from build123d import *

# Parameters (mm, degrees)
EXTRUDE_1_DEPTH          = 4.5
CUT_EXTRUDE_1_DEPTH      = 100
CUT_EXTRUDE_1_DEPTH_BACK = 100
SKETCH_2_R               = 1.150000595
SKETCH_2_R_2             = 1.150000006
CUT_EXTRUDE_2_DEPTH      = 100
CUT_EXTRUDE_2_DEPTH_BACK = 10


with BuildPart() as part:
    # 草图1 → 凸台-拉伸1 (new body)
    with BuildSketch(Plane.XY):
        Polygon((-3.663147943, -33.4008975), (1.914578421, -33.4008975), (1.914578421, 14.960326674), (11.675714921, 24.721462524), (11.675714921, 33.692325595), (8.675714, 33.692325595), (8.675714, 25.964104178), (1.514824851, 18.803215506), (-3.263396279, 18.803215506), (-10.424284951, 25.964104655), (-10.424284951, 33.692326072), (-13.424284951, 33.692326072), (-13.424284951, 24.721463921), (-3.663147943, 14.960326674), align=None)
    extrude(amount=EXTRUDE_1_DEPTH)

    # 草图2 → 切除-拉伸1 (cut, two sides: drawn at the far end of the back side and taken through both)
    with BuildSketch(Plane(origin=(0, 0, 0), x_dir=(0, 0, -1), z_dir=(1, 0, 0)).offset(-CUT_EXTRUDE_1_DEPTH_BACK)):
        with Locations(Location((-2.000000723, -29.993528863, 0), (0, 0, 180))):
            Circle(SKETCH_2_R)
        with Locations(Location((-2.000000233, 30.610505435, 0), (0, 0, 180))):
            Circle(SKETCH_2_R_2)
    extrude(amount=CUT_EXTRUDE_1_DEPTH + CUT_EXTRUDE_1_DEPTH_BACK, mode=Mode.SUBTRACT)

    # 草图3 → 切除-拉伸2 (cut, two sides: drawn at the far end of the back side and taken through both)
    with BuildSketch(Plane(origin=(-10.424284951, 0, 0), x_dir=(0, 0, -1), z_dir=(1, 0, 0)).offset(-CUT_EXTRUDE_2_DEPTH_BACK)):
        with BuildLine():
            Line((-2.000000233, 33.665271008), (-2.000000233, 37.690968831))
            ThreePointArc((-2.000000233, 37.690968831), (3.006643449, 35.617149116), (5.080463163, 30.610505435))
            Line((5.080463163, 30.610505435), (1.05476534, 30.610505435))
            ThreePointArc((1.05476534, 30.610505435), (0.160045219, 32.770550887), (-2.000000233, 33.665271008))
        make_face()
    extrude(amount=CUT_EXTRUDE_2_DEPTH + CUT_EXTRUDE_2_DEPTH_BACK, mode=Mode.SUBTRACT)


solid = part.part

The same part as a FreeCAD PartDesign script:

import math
import FreeCAD as App
import Part
import Sketcher

V = App.Vector

doc = App.newDocument("Part")
params = doc.addObject("Spreadsheet::Sheet", "Params")
for row, (alias, value) in enumerate([
    ("sketch1_width", "3.000001 mm"),
    ("pad1_length", "4.5 mm"),
    ("sketch2_diameter", "2.300001 mm"),
], start=1):
    params.set(f"A{row}", alias)
    params.set(f"B{row}", "=" + value)
    params.setAlias(f"B{row}", alias)

body = doc.addObject("PartDesign::Body", "Body")

# Sketch on XY plane
sketch1 = body.newObject("Sketcher::SketchObject", "Sketch")
sketch1.AttachmentSupport = (doc.getObject("XY_Plane"), [""])
sketch1.MapMode = "FlatFace"
sketch1.addGeometry([
    Part.LineSegment(V(-3.7, -33.4, 0), V(1.9, -33.4, 0)),  # 0
    Part.LineSegment(V(1.9, -33.4, 0), V(1.9, 15, 0)),  # 1
    Part.LineSegment(V(1.9, 15, 0), V(11.7, 24.7, 0)),  # 2
    Part.LineSegment(V(11.7, 24.7, 0), V(11.7, 33.7, 0)),  # 3
    Part.LineSegment(V(11.7, 33.7, 0), V(8.7, 33.7, 0)),  # 4
    Part.LineSegment(V(8.7, 33.7, 0), V(8.7, 26, 0)),  # 5
    Part.LineSegment(V(8.7, 26, 0), V(1.5, 18.8, 0)),  # 6
    Part.LineSegment(V(1.5, 18.8, 0), V(-3.3, 18.8, 0)),  # 7
    Part.LineSegment(V(-3.3, 18.8, 0), V(-10.4, 26, 0)),  # 8
    Part.LineSegment(V(-10.4, 26, 0), V(-10.4, 33.7, 0)),  # 9
    Part.LineSegment(V(-10.4, 33.7, 0), V(-13.4, 33.7, 0)),  # 10
    Part.LineSegment(V(-13.4, 33.7, 0), V(-13.4, 24.7, 0)),  # 11
    Part.LineSegment(V(-13.4, 24.7, 0), V(-3.7, 15, 0)),  # 12
    Part.LineSegment(V(-3.7, 15, 0), V(-3.7, -33.4, 0)),  # 13
], False)
sketch1.addConstraint([
    Sketcher.Constraint("Coincident", 0, 2, 1, 1),
    Sketcher.Constraint("Coincident", 1, 2, 2, 1),
    Sketcher.Constraint("Coincident", 2, 2, 3, 1),
    Sketcher.Constraint("Coincident", 3, 2, 4, 1),
    Sketcher.Constraint("Coincident", 4, 2, 5, 1),
    Sketcher.Constraint("Coincident", 5, 2, 6, 1),
    Sketcher.Constraint("Coincident", 6, 2, 7, 1),
    Sketcher.Constraint("Coincident", 7, 2, 8, 1),
    Sketcher.Constraint("Coincident", 8, 2, 9, 1),
    Sketcher.Constraint("Coincident", 9, 2, 10, 1),
    Sketcher.Constraint("Coincident", 10, 2, 11, 1),
    Sketcher.Constraint("Coincident", 11, 2, 12, 1),
    Sketcher.Constraint("Coincident", 12, 2, 13, 1),
    Sketcher.Constraint("Coincident", 13, 2, 0, 1),
    Sketcher.Constraint("Horizontal", 0),
    Sketcher.Constraint("Vertical", 1),
    Sketcher.Constraint("Vertical", 3),
    Sketcher.Constraint("Horizontal", 4),
    Sketcher.Constraint("Vertical", 5),
    Sketcher.Constraint("Horizontal", 7),
    Sketcher.Constraint("Vertical", 9),
    Sketcher.Constraint("Horizontal", 10),
    Sketcher.Constraint("Vertical", 11),
    Sketcher.Constraint("Vertical", 13),
    Sketcher.Constraint("Parallel", 2, 6),
    Sketcher.Constraint("Perpendicular", 6, 8),
    Sketcher.Constraint("Parallel", 8, 12),
    Sketcher.Constraint("Horizontal", 5, 2, 8, 2),
    Sketcher.Constraint("Horizontal", 4, 2, 9, 2),
    Sketcher.Constraint("Horizontal", 2, 2, 11, 2),
    Sketcher.Constraint("Horizontal", 1, 2, 12, 2),
    Sketcher.Constraint("Equal", 4, 10),
    Sketcher.Constraint("Equal", 6, 8),
    Sketcher.Constraint("DistanceX", 4, 2, 4, 1, 3.000001),
    Sketcher.Constraint("DistanceX", 8, 2, 5, 2, 19.099999),
    Sketcher.Constraint("DistanceY", 1, 2, 3, 2, 18.731999),
    Sketcher.Constraint("DistanceY", 0, 2, 5, 2, 59.365002),
    Sketcher.Constraint("DistanceX", 7, 2, 7, 1, 4.778221),
    Sketcher.Constraint("DistanceY", 5, 2, 5, 1, 7.728221),
    Sketcher.Constraint("Distance", 2, 13.804331),
    Sketcher.Constraint("DistanceX", -1, 1, 0, 2, 1.914578),
    Sketcher.Constraint("DistanceY", 0, 2, -1, 1, 33.400897),
])
sketch1.setExpression("Constraints[33]", "Params.sketch1_width")
pad1 = body.newObject("PartDesign::Pad", "Pad")
pad1.Profile = sketch1
pad1.setExpression("Length", "Params.pad1_length")

# Sketch on YZ plane
sketch2 = body.newObject("Sketcher::SketchObject", "Sketch001")
sketch2.AttachmentSupport = (doc.getObject("YZ_Plane"), [""])
sketch2.MapMode = "FlatFace"
sketch2.addGeometry([
    Part.Circle(V(-30, 2, 0), V(0, 0, 1), 1.2),
    Part.Circle(V(30.6, 2, 0), V(0, 0, 1), 1.2),
], False)
sketch2.addConstraint([
    Sketcher.Constraint("Equal", 0, 1),
    Sketcher.Constraint("Horizontal", 0, 3, 1, 3),
    Sketcher.Constraint("Diameter", 0, 2.300001),
    Sketcher.Constraint("DistanceY", -1, 1, 0, 3, 2.000001),
    Sketcher.Constraint("DistanceX", 0, 3, -1, 1, 29.993529),
    Sketcher.Constraint("DistanceX", -1, 1, 1, 3, 30.610505),
])
sketch2.setExpression("Constraints[2]", "Params.sketch2_diameter")
pocket1 = body.newObject("PartDesign::Pocket", "Pocket")
pocket1.Profile = sketch2
pocket1.Type = "ThroughAll"
pocket1.Midplane = True

# Sketch on YZ plane
sketch3 = body.newObject("Sketcher::SketchObject", "Sketch002")
sketch3.AttachmentSupport = (doc.getObject("YZ_Plane"), [""])
sketch3.MapMode = "FlatFace"
sketch3.AttachmentOffset = App.Placement(V(0, 0, -10.424285), App.Rotation())
sketch3.addGeometry([
    Part.LineSegment(V(37.7, 2, 0), V(33.7, 2, 0)),
    Part.ArcOfCircle(Part.Circle(V(30.6, 2, 0), V(0, 0, 1), 3.1), math.radians(-90), math.radians(0)),
    Part.LineSegment(V(30.6, -1.1, 0), V(30.6, -5.1, 0)),
    Part.ArcOfCircle(Part.Circle(V(30.6, 2, 0), V(0, 0, 1), 7.1), math.radians(-90), math.radians(0)),
], False)
sketch3.addConstraint([
    Sketcher.Constraint("Coincident", 0, 2, 1, 2),
    Sketcher.Constraint("Coincident", 1, 1, 2, 1),
    Sketcher.Constraint("Coincident", 2, 2, 3, 1),
    Sketcher.Constraint("Coincident", 3, 2, 0, 1),
    Sketcher.Constraint("Horizontal", 0),
    Sketcher.Constraint("Vertical", 2),
    Sketcher.Constraint("Coincident", 3, 3, 1, 3),
    Sketcher.Constraint("Horizontal", 3, 3, 0, 2),
    Sketcher.Constraint("Vertical", 3, 3, 1, 1),
    Sketcher.Constraint("DistanceY", -1, 1, 1, 3, 2.0),
    Sketcher.Constraint("Radius", 1, 3.054766),
    Sketcher.Constraint("Radius", 3, 7.080463),
    Sketcher.Constraint("DistanceX", -1, 1, 0, 2, 33.665271),
])
pocket2 = body.newObject("PartDesign::Pocket", "Pocket001")
pocket2.Profile = sketch3
pocket2.Type = "ThroughAll"
pocket2.Midplane = True

doc.recompute()
